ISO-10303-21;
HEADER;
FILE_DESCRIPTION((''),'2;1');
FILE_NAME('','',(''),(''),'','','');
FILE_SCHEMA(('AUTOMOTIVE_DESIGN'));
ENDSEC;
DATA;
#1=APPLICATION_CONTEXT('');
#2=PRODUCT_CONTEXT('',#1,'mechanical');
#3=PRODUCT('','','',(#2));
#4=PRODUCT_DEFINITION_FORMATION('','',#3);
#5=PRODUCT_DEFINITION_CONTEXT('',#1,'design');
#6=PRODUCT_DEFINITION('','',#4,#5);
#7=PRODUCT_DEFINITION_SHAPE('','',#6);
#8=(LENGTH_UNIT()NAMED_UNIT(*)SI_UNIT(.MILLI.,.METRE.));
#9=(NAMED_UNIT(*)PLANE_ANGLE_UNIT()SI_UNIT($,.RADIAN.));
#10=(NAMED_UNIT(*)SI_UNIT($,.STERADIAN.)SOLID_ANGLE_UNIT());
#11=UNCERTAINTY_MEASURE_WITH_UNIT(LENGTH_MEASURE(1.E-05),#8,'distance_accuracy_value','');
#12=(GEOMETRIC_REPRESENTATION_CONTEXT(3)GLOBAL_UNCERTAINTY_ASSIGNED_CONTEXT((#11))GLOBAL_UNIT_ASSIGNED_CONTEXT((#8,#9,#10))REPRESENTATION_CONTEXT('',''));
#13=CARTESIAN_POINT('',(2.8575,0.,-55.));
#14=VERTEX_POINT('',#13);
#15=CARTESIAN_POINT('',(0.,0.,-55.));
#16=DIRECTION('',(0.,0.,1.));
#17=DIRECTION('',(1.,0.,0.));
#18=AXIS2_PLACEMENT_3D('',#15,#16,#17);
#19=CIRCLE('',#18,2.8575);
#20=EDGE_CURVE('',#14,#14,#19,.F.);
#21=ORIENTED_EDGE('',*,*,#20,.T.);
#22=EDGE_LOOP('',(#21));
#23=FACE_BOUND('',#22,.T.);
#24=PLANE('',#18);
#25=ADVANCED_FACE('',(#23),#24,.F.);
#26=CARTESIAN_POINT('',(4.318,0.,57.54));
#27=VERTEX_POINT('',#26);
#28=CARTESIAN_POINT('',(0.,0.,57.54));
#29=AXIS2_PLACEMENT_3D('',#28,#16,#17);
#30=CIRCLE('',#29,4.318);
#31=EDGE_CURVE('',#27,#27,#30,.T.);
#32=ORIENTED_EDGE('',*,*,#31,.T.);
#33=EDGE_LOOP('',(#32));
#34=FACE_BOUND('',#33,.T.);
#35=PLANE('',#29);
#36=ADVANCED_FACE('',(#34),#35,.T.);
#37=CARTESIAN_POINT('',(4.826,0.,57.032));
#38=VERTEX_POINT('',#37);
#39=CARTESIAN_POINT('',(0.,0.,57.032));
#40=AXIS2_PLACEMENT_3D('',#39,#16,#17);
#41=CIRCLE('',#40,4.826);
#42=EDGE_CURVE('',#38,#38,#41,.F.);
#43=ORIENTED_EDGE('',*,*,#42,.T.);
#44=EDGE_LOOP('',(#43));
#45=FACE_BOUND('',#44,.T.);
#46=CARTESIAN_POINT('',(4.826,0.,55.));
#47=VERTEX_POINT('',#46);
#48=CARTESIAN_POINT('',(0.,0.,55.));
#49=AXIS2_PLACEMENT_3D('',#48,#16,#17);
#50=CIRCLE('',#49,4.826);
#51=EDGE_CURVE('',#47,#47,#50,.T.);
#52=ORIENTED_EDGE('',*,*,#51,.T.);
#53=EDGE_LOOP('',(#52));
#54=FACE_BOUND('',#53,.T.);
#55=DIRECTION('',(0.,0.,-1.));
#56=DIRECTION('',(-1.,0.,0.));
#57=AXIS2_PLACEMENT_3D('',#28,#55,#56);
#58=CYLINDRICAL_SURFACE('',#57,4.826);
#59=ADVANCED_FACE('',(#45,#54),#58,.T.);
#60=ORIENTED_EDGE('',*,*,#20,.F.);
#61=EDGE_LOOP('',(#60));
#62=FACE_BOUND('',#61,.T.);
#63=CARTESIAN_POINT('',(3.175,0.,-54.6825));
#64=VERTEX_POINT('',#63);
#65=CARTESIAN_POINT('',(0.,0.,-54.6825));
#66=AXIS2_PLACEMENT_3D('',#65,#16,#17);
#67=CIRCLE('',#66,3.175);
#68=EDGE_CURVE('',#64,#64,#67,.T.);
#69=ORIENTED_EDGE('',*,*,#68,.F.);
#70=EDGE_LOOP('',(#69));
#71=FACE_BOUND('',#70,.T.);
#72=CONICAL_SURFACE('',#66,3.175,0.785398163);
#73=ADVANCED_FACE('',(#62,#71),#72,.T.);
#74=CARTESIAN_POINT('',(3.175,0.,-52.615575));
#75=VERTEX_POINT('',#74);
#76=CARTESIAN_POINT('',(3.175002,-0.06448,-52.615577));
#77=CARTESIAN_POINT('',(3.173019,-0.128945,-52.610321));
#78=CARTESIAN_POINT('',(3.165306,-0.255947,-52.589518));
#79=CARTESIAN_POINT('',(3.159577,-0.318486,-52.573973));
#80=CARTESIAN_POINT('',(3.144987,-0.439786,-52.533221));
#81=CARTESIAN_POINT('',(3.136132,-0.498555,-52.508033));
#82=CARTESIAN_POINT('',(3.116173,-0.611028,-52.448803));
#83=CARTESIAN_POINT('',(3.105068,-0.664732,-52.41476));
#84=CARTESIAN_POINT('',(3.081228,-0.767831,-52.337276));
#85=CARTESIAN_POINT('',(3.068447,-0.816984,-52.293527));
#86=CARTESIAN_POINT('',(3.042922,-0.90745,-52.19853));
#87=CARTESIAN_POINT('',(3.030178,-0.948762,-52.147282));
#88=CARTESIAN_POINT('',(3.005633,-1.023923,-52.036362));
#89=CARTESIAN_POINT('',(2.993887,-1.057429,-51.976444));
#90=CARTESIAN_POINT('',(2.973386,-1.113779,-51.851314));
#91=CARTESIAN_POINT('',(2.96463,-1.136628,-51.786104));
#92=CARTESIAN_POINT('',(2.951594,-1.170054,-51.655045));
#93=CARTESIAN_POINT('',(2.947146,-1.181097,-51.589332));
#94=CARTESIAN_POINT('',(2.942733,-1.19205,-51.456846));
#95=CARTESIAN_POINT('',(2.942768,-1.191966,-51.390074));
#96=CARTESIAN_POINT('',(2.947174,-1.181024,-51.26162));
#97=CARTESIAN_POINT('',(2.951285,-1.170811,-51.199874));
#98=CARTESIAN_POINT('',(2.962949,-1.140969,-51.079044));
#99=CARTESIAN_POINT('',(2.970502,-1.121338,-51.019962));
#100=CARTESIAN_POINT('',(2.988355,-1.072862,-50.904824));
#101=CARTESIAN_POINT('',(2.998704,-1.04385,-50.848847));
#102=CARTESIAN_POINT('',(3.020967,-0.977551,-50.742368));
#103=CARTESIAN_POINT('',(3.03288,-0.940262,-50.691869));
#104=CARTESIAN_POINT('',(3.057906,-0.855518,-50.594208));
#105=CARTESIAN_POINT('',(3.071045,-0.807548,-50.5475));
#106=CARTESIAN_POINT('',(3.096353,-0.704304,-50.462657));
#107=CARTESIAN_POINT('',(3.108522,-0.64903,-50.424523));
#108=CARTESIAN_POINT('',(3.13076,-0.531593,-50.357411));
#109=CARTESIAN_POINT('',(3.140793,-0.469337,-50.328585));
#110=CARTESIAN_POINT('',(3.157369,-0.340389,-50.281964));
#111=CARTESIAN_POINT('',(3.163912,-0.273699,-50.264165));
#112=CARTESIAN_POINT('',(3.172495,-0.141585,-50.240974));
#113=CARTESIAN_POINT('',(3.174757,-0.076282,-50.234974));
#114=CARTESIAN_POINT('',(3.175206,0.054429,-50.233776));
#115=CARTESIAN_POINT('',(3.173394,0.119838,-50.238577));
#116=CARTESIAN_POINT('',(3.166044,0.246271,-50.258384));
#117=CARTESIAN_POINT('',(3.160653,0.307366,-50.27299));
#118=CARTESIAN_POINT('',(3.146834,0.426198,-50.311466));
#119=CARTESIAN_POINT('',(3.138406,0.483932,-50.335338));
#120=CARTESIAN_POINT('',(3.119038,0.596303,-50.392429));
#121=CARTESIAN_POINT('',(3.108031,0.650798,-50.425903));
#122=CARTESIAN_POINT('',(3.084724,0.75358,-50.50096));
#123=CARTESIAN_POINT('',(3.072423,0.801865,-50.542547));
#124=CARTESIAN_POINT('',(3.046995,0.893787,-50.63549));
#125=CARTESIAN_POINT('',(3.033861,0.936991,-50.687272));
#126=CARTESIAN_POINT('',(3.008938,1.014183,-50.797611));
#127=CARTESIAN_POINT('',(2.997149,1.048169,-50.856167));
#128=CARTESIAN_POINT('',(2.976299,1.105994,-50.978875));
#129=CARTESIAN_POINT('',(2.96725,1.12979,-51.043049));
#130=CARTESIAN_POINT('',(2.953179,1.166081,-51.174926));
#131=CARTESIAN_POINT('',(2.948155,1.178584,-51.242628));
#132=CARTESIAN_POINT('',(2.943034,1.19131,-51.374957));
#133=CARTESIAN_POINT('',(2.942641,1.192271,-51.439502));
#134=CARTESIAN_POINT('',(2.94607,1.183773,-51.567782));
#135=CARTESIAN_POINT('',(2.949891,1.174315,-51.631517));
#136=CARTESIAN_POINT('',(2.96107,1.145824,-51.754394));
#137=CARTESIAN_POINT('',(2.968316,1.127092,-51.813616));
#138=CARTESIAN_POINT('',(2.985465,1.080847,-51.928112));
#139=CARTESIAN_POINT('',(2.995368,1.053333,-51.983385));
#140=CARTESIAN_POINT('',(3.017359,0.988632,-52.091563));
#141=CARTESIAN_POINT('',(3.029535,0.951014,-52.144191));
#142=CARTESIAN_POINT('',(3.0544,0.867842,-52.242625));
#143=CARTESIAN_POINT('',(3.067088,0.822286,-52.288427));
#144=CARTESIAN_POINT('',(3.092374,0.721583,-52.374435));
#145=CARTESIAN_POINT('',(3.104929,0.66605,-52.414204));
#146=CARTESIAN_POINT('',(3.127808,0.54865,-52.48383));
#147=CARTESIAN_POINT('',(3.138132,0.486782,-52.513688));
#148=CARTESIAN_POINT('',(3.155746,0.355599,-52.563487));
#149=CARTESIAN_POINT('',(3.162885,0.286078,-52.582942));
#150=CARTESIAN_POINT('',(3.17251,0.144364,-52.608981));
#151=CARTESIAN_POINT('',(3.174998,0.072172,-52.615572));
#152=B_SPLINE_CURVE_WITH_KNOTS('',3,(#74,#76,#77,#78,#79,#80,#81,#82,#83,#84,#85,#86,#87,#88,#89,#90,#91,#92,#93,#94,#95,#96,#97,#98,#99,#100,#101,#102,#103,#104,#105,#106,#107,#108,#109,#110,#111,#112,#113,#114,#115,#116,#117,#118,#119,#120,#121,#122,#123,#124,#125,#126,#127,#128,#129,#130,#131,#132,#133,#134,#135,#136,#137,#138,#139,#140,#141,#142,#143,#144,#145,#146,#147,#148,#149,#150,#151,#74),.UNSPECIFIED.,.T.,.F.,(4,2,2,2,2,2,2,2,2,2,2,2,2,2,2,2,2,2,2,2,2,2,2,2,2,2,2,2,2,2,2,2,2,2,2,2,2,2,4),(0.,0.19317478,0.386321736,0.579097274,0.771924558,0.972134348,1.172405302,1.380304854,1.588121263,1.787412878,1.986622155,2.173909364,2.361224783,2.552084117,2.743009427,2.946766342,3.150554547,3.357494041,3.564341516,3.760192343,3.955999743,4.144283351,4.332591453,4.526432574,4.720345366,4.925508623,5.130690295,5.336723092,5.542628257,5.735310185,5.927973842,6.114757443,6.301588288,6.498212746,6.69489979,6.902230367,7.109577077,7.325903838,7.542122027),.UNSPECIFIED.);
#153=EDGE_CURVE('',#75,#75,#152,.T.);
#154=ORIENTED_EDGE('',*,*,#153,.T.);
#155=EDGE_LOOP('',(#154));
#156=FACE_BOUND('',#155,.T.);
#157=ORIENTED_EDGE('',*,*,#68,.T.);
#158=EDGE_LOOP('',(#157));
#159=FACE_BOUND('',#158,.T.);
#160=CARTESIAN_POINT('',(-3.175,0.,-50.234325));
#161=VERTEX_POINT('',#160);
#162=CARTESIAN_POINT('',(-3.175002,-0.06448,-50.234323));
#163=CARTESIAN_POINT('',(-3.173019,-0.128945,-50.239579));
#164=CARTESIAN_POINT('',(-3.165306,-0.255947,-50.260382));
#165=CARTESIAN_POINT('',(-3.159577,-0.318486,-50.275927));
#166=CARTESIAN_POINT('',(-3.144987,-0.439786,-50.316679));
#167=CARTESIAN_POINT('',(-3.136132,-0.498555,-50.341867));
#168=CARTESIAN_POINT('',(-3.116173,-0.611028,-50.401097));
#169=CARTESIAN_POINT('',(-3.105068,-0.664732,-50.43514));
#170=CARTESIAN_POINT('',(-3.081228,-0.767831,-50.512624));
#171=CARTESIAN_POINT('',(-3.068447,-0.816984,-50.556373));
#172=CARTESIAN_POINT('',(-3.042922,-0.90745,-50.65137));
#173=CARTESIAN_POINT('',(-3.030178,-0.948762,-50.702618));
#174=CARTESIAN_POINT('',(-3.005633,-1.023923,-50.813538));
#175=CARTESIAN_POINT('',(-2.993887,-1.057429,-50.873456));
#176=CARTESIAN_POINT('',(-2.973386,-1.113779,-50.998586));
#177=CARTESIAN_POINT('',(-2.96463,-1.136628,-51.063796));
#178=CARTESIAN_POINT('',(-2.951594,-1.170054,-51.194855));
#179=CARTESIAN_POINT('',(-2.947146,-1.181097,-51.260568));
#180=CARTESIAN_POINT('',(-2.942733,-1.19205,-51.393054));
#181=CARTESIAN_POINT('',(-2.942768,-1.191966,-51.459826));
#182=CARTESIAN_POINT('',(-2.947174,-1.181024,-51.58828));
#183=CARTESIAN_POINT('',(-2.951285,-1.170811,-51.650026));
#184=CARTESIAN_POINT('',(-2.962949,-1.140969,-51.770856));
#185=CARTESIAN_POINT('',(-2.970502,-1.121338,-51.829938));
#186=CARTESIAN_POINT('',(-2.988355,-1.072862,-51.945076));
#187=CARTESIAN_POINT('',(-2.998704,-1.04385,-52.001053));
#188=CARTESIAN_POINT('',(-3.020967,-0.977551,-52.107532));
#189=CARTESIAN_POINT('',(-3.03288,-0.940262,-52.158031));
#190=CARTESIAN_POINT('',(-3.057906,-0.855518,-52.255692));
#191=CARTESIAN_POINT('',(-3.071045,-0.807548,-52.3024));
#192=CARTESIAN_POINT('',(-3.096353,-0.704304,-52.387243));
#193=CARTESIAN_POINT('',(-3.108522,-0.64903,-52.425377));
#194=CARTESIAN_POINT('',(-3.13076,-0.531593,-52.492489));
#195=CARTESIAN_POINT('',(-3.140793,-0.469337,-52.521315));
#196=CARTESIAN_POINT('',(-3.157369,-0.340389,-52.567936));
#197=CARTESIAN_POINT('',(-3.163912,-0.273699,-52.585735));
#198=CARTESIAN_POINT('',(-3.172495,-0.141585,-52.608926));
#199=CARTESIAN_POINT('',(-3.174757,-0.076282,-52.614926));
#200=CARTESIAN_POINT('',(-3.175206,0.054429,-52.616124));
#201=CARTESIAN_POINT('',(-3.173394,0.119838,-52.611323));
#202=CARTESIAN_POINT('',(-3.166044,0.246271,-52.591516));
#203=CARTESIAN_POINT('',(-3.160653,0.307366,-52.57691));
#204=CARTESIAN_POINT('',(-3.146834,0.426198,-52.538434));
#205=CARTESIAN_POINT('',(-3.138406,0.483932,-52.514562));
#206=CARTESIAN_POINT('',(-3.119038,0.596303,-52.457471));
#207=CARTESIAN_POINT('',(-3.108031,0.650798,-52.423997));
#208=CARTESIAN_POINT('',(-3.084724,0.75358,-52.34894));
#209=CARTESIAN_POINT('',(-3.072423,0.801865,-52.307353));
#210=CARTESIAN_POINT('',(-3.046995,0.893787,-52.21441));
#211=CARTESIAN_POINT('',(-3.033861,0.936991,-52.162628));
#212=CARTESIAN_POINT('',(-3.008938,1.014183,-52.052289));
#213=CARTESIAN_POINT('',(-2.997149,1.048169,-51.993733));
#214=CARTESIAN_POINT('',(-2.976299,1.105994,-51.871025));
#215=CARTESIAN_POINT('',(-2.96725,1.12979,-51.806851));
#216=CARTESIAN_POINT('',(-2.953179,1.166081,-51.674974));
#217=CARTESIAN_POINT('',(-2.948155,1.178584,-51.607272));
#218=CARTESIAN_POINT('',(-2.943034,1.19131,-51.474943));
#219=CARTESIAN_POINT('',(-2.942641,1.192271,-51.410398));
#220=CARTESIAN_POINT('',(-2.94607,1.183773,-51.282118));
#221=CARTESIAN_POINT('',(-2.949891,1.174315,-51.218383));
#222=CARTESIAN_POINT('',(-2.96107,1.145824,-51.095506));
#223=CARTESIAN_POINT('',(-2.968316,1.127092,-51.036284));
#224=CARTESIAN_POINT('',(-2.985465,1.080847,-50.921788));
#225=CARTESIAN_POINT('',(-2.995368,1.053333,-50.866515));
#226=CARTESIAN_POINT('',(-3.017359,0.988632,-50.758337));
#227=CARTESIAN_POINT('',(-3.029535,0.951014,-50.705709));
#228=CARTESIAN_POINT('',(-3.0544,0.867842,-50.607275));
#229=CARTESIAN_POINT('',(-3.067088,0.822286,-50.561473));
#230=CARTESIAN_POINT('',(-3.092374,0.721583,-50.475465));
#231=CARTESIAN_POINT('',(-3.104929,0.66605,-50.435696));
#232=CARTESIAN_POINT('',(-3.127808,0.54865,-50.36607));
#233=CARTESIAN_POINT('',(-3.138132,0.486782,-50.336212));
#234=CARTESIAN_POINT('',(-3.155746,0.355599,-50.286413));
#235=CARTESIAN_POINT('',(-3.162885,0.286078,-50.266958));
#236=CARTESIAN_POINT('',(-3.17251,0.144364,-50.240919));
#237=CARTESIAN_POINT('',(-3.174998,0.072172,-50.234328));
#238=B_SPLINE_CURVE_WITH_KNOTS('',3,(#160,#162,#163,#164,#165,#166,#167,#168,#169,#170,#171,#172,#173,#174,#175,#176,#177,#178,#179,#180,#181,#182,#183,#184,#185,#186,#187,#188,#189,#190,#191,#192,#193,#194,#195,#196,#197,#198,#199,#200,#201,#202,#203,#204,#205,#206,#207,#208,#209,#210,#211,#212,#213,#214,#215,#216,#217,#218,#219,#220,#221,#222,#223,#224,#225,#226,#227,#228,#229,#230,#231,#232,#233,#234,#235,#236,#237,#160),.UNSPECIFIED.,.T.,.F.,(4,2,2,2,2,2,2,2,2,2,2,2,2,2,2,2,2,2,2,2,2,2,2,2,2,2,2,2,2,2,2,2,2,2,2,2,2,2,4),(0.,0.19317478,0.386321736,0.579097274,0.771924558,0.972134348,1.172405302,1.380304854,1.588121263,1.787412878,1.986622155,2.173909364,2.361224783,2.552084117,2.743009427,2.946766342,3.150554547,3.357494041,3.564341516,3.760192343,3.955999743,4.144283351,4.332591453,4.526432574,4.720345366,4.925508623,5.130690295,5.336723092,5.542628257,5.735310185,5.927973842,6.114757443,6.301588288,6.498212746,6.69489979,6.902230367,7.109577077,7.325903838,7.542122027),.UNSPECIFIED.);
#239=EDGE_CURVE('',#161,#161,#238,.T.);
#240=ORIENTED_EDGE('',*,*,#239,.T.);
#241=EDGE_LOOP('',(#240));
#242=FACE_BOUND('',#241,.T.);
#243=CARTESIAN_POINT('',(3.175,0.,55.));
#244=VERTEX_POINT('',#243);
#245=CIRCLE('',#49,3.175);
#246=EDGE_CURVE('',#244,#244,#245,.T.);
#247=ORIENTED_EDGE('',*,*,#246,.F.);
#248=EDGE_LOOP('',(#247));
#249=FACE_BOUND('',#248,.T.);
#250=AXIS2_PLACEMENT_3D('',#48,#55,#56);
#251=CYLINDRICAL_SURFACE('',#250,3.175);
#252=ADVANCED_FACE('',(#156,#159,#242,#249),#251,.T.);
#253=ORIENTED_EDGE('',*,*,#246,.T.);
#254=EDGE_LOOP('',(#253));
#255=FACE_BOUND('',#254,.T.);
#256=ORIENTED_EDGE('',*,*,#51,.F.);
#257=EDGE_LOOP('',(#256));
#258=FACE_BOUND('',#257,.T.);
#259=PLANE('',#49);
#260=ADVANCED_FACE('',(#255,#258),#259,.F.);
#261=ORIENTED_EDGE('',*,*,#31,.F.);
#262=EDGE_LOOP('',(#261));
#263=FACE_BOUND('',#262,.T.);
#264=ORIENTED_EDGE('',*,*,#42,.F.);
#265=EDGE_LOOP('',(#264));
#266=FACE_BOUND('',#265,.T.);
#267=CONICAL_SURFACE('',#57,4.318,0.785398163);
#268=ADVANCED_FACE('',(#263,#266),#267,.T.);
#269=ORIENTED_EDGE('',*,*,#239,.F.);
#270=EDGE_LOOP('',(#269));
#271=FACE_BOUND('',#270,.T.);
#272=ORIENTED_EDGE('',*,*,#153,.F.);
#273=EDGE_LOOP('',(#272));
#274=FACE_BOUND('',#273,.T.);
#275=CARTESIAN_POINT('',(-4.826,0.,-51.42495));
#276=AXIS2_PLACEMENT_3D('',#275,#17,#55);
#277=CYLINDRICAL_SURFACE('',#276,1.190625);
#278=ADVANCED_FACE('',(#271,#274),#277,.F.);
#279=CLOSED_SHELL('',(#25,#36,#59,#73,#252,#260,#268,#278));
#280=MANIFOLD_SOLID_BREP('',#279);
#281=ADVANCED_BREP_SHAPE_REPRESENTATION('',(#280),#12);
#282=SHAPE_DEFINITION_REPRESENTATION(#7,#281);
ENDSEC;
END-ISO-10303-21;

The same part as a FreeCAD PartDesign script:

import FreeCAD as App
import Part
import Sketcher
from FreeCAD import Vector
Q = App.Units.Quantity


def edges_at(feature, points):
    """Names of the edges that pass closest to the given points."""
    edges = feature.Shape.Edges
    near = lambda p: min(range(len(edges)), key=lambda i: edges[i].distToShape(Part.Vertex(*p))[0])
    return sorted({f"Edge{near(p) + 1}" for p in points})

doc = App.newDocument("Part")
body = doc.addObject("PartDesign::Body", "Body")

# Sketch on XY plane
sketch1 = body.newObject("Sketcher::SketchObject", "Sketch")
sketch1.AttachmentSupport = (doc.getObject("XY_Plane"), [""])
sketch1.MapMode = "FlatFace"
sketch1.addGeometry(Part.Circle(Vector(0, 0, 0), Vector(0, 0, 1), 3.2), False)
sketch1.addConstraint([
    Sketcher.Constraint("Coincident", 0, 3, -1, 1),
    Sketcher.Constraint("Diameter", 0, Q("0.25 in")),
])
pad1 = body.newObject("PartDesign::Pad", "Pad")
pad1.Profile = sketch1
pad1.Length = 110
pad1.Midplane = True

# Sketch on XY plane
sketch2 = body.newObject("Sketcher::SketchObject", "Sketch001")
sketch2.AttachmentSupport = (doc.getObject("XY_Plane"), [""])
sketch2.MapMode = "FlatFace"
sketch2.AttachmentOffset = App.Placement(Vector(0, 0, 55), App.Rotation())
sketch2.addGeometry(Part.Circle(Vector(0, 0, 0), Vector(0, 0, 1), 4.8), False)
sketch2.addConstraint([
    Sketcher.Constraint("Coincident", 0, 3, -1, 1),
    Sketcher.Constraint("Diameter", 0, Q("0.38 in")),
])
pad2 = body.newObject("PartDesign::Pad", "Pad001")
pad2.Profile = sketch2
pad2.Length = Q("0.1 in")
doc.recompute()

chamfer = body.newObject("PartDesign::Chamfer", "Chamfer")
chamfer.Base = (pad2, edges_at(pad2, [(-4.826, 0, 57.54)]))
chamfer.Size = Q("0.02 in")

# Sketch on YZ plane
sketch3 = body.newObject("Sketcher::SketchObject", "Sketch002")
sketch3.AttachmentSupport = (doc.getObject("YZ_Plane"), [""])
sketch3.MapMode = "FlatFace"
sketch3.addGeometry(Part.Circle(Vector(0, -51.4, 0), Vector(0, 0, 1), 1.2), False)
sketch3.addConstraint([
    Sketcher.Constraint("PointOnObject", 0, 3, -2),
    Sketcher.Constraint("Diameter", 0, Q("0.09375 in")),
    Sketcher.Constraint("DistanceY", 0, 3, -1, 1, 51.42495),
])
pocket1 = body.newObject("PartDesign::Pocket", "Pocket")
pocket1.Profile = sketch3
pocket1.Type = "ThroughAll"
pocket1.Midplane = True
doc.recompute()

chamfer2 = body.newObject("PartDesign::Chamfer", "Chamfer001")
chamfer2.Base = (pocket1, edges_at(pocket1, [(-3.175, 0, -55)]))
chamfer2.Size = Q("0.0125 in")

doc.recompute()
